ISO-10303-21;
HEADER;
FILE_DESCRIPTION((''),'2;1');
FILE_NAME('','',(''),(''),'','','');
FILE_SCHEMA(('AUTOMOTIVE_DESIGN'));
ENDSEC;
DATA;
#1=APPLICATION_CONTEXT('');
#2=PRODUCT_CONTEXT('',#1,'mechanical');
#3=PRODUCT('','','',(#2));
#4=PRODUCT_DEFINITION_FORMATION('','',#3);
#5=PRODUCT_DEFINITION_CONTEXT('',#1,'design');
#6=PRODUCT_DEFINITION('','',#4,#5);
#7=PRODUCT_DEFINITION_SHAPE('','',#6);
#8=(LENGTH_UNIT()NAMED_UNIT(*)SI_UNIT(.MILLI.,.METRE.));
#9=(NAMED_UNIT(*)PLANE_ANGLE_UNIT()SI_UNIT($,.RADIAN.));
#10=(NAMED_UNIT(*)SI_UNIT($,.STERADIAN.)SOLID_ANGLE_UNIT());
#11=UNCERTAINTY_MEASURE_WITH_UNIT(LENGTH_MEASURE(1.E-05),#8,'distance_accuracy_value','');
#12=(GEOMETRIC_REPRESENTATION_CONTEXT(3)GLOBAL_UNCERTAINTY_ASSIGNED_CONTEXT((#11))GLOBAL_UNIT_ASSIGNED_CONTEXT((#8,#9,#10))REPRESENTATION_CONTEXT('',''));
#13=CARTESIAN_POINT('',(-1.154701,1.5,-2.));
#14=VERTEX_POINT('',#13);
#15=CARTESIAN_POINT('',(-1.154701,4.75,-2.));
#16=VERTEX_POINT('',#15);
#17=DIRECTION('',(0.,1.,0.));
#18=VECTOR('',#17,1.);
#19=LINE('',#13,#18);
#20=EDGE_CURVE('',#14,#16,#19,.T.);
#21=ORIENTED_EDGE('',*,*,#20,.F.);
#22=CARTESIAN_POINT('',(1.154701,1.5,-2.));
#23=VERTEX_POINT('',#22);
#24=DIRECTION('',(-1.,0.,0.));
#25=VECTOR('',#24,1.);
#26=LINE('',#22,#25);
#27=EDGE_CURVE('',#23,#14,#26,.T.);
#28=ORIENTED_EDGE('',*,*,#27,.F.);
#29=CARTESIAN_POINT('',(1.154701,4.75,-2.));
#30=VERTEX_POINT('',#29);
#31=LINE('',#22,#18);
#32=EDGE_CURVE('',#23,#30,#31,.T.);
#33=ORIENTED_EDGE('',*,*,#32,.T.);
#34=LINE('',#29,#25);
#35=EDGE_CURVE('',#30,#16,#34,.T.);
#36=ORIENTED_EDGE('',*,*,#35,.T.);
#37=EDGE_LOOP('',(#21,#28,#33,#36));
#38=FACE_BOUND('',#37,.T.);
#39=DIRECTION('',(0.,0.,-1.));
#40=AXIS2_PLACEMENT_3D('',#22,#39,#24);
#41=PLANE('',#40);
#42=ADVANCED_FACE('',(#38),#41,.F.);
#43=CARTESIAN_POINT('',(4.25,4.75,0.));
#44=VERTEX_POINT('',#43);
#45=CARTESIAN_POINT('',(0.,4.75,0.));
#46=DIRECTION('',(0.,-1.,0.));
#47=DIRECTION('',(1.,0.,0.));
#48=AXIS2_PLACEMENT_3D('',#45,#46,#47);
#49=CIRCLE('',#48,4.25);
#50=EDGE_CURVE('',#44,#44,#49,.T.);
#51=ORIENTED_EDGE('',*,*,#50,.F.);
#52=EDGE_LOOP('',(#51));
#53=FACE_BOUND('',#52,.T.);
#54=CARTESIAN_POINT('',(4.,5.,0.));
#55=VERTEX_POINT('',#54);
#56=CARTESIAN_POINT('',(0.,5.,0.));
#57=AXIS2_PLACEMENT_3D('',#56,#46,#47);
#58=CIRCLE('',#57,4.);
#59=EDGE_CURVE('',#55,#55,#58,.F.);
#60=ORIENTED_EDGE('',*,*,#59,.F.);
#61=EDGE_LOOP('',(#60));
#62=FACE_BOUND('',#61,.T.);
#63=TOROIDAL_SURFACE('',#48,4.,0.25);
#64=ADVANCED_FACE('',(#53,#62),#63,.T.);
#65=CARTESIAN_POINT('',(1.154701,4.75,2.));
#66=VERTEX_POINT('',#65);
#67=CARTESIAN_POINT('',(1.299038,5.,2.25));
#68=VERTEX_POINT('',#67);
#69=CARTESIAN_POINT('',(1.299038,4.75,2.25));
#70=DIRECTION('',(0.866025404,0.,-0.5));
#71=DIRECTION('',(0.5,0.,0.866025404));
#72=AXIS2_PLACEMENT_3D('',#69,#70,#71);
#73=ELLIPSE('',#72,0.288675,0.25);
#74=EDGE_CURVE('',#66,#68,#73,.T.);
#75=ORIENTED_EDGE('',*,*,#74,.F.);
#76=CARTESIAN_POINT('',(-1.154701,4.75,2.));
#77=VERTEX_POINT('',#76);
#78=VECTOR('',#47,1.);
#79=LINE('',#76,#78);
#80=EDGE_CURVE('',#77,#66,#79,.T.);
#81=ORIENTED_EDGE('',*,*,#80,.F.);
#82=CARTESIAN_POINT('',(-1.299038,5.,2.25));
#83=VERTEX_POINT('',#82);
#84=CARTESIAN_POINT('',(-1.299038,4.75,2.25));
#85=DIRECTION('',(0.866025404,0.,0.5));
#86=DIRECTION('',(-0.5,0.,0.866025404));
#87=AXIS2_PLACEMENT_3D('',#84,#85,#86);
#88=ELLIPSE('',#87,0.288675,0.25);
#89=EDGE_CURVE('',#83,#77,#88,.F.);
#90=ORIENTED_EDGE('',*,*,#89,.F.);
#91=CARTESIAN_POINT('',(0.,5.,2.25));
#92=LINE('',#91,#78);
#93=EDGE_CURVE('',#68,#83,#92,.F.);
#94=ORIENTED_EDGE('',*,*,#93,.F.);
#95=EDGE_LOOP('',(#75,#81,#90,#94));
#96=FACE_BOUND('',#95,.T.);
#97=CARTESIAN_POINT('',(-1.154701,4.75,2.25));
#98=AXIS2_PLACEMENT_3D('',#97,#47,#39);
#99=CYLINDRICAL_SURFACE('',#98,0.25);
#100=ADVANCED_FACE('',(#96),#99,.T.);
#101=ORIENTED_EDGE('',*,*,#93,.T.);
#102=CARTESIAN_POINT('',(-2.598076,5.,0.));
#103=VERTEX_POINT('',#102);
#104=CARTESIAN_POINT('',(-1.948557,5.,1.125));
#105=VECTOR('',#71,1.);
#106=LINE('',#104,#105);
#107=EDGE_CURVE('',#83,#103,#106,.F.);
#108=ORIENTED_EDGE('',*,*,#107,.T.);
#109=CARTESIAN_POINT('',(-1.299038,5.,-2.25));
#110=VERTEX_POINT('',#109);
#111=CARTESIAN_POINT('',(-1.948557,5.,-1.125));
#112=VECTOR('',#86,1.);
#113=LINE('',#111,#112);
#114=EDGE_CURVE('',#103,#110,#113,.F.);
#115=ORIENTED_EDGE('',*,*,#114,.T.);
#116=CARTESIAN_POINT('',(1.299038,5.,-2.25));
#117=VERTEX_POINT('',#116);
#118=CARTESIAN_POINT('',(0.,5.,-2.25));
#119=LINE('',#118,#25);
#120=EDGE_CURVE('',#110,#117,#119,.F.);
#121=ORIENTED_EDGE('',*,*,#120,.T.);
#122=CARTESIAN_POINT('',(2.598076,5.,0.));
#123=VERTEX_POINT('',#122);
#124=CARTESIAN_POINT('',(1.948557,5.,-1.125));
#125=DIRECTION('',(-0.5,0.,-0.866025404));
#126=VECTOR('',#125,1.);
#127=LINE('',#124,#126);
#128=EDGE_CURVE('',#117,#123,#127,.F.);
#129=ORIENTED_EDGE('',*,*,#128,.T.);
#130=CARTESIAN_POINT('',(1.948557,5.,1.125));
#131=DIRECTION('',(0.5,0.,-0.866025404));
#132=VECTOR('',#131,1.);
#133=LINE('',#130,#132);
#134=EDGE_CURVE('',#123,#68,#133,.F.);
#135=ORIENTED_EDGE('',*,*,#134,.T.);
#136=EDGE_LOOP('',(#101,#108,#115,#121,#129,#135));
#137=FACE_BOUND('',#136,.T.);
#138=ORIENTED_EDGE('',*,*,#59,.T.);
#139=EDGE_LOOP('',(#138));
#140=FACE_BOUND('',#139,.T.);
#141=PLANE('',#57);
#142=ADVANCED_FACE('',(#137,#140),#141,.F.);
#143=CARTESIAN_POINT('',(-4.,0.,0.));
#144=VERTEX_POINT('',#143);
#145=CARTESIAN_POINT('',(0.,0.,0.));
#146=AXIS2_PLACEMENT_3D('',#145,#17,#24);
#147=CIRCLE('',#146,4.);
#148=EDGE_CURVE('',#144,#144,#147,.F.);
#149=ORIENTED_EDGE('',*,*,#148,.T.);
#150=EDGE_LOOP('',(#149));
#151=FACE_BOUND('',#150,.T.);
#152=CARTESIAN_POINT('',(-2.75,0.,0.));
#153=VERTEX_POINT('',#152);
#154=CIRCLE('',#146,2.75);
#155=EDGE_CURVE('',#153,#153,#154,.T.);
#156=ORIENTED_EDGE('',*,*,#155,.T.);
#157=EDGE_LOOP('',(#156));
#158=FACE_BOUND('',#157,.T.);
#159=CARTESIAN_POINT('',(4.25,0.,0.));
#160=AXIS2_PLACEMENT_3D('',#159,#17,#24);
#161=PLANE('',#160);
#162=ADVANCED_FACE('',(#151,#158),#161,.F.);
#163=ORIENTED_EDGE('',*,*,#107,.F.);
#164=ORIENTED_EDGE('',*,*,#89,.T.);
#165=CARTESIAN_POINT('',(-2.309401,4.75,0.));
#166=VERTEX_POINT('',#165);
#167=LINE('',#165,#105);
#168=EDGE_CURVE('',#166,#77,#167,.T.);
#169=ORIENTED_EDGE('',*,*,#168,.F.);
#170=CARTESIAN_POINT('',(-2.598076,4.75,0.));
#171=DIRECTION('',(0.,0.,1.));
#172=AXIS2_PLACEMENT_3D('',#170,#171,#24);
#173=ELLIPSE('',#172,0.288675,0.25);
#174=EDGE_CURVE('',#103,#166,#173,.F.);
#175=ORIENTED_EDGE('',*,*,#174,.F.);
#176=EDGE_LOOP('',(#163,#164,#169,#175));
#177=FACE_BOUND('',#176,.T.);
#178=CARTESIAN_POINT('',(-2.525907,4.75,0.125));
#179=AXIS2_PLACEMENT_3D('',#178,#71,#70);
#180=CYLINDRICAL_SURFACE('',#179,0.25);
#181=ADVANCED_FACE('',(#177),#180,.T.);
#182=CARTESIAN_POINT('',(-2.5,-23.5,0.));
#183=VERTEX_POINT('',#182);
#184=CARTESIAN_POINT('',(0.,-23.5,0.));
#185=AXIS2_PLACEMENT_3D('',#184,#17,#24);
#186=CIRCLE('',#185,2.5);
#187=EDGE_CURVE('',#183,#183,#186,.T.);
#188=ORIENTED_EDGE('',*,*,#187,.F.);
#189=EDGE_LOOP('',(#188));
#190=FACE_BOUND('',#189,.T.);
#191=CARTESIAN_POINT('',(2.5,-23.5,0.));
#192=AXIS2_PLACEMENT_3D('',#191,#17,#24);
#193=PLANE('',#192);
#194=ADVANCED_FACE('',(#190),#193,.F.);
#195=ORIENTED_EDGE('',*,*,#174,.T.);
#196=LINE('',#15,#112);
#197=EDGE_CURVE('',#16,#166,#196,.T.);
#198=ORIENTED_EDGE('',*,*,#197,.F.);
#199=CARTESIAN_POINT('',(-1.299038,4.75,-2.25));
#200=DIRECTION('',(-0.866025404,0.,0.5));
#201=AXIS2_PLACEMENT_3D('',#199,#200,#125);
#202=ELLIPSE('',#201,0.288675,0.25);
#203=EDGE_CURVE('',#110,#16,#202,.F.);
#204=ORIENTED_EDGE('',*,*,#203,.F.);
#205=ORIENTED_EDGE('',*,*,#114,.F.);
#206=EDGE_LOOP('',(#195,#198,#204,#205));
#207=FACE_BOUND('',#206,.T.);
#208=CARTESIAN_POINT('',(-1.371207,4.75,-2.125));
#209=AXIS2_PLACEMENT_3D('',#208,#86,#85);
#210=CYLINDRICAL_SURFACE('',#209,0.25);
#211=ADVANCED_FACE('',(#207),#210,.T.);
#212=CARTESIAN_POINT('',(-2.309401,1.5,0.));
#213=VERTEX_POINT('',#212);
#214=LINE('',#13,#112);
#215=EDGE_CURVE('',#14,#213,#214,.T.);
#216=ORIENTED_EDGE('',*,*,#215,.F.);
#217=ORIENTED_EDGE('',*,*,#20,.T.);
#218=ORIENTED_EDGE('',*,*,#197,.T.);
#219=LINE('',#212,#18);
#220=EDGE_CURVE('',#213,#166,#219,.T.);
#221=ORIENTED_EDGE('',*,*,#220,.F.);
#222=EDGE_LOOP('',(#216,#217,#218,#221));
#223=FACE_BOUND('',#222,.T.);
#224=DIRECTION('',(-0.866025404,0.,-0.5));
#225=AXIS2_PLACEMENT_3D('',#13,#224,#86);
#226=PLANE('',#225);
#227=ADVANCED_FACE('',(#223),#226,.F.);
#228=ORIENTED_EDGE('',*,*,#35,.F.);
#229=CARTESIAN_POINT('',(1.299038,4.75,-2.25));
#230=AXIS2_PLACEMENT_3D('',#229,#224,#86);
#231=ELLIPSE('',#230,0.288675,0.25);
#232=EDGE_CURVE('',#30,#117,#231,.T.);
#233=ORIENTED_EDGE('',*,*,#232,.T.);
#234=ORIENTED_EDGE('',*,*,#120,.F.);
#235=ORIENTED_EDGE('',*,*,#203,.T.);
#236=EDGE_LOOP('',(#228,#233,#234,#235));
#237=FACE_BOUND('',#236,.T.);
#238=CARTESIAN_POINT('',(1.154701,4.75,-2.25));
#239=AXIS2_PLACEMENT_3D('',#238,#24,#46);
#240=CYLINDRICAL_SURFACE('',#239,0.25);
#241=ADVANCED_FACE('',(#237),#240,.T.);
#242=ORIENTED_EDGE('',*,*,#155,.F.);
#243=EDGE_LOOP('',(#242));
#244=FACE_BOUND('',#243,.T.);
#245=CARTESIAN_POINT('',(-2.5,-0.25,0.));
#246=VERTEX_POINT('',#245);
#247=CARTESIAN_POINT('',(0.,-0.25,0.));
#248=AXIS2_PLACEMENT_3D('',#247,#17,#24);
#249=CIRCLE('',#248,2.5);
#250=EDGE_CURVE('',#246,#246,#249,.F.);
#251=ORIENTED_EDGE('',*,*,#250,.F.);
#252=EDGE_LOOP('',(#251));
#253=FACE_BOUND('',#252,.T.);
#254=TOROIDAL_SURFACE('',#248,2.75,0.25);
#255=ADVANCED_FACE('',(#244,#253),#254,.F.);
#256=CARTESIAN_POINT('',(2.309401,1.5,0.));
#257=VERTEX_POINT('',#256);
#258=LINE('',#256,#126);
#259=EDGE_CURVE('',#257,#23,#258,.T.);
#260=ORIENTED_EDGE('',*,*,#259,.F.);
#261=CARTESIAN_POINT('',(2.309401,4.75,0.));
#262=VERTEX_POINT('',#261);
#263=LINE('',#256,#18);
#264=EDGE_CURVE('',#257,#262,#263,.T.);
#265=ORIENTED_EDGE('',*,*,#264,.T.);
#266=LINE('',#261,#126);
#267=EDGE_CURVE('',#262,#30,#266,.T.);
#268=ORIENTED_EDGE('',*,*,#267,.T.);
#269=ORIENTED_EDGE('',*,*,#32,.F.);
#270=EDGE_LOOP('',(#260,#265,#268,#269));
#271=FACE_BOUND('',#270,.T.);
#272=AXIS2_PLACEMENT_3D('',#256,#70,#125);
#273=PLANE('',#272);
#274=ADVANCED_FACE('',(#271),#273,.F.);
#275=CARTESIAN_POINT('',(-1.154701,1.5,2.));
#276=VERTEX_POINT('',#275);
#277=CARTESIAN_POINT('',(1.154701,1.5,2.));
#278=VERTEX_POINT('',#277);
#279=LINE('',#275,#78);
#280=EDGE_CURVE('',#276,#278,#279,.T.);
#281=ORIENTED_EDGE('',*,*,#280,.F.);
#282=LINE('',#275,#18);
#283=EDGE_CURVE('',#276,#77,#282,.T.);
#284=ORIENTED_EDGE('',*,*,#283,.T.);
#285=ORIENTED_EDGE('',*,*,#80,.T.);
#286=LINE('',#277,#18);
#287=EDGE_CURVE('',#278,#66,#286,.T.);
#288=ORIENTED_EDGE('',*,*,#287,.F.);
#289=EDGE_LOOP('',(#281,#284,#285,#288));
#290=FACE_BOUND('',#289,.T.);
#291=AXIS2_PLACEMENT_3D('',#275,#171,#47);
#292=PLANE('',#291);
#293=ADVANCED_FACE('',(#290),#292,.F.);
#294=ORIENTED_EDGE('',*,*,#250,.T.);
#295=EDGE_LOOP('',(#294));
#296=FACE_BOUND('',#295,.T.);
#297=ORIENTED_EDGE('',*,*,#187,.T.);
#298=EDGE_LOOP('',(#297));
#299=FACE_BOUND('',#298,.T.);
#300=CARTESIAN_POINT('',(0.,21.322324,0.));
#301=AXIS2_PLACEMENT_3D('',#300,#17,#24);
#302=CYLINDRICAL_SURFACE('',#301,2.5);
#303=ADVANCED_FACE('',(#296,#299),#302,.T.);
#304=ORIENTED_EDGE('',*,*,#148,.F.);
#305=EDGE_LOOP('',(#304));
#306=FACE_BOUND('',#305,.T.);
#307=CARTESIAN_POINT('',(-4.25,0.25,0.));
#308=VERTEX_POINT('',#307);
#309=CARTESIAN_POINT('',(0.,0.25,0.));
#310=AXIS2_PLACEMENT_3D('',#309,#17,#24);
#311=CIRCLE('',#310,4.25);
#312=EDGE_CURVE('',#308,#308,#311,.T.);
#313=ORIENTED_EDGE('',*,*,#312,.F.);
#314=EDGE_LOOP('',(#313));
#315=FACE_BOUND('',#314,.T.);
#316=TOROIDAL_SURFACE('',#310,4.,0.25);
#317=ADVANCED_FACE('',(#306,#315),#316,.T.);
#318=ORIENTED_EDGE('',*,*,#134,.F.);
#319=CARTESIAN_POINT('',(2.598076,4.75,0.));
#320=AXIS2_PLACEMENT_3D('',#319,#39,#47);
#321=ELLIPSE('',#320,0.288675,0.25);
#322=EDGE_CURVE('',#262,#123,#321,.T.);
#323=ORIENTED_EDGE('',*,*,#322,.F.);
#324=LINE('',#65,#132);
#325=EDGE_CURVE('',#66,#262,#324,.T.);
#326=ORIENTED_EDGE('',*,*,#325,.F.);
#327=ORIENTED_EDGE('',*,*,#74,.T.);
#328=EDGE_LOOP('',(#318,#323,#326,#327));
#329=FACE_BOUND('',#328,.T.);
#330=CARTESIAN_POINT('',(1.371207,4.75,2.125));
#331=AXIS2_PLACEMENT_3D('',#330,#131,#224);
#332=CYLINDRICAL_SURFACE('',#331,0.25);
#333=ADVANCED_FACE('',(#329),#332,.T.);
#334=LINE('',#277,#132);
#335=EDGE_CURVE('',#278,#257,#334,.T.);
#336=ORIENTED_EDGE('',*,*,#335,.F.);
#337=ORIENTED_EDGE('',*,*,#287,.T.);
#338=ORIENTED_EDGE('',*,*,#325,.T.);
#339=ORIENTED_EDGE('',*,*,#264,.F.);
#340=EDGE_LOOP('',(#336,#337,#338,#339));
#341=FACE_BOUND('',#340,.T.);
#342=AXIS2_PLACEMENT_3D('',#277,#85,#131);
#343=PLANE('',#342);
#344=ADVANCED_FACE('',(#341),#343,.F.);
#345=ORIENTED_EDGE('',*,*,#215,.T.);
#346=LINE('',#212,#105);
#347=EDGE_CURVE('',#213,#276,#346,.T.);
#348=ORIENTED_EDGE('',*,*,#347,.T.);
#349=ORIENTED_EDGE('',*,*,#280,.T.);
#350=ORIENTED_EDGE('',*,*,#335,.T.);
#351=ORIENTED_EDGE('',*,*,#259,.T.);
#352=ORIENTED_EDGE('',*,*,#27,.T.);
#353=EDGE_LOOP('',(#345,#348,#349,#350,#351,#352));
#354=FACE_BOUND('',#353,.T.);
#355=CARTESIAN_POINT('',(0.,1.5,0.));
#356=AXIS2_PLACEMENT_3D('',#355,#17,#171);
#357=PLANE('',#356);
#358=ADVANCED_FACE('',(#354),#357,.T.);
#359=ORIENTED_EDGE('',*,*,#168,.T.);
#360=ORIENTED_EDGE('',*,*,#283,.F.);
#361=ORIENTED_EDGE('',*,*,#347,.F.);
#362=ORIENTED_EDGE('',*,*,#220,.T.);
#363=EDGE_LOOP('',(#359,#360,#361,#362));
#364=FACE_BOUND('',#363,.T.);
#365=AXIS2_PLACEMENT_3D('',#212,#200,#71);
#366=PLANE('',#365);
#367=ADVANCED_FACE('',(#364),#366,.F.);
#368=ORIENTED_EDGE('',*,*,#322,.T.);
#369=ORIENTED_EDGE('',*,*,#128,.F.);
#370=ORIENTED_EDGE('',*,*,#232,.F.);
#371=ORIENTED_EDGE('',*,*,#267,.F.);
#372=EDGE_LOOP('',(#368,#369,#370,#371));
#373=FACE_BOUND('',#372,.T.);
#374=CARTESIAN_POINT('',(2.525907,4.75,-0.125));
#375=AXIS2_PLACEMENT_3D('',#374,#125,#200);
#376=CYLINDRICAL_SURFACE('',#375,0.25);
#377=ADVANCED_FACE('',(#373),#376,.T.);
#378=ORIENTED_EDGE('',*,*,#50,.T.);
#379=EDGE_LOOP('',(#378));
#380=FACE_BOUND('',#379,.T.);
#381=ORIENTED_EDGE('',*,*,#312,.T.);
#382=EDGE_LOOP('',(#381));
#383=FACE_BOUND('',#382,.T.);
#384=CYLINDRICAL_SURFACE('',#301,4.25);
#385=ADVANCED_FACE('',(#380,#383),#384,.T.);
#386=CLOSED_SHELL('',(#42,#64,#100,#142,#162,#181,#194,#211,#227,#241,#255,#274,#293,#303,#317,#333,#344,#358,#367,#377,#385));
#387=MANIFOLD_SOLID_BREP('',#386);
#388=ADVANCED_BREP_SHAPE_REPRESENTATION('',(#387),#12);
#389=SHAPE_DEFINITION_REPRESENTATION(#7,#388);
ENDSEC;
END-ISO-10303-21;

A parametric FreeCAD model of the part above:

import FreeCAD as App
import Part
import Sketcher

V = App.Vector
Q = App.Units.Quantity


def edges_at(feature, points):
    """Names of the edges that pass closest to the given points."""
    edges = feature.Shape.Edges
    near = lambda p: min(range(len(edges)), key=lambda i: edges[i].distToShape(Part.Vertex(*p))[0])
    return sorted({f"Edge{near(p) + 1}" for p in points})

doc = App.newDocument("Part")
params = doc.addObject("Spreadsheet::Sheet", "Params")
for row, (alias, value) in enumerate([
    ("sketch1_height", "5 mm"),
    ("sketch1_width", "2.5 mm"),
    ("sketch1_height2", "28.5 mm"),
    ("sketch1_width2", "4.25 mm"),
    ("revolution_angle", "360 deg"),
    ("pocket1_length", "3.5 mm"),
    ("fillet_radius", "0.25 mm"),
], start=1):
    params.set(f"A{row}", alias)
    params.set(f"B{row}", "=" + value)
    params.setAlias(f"B{row}", alias)

body = doc.addObject("PartDesign::Body", "Body")

sketch1 = body.newObject("Sketcher::SketchObject", "Sketch")
sketch1.AttachmentSupport = (doc.getObject("XY_Plane"), [""])
sketch1.MapMode = "FlatFace"
sketch1.addGeometry([
    Part.LineSegment(V(4.25, 5, 0), V(0, 5, 0)),
    Part.LineSegment(V(0, 5, 0), V(0, -23.5, 0)),
    Part.LineSegment(V(0, -23.5, 0), V(2.5, -23.5, 0)),
    Part.LineSegment(V(2.5, -23.5, 0), V(2.5, 0, 0)),
    Part.LineSegment(V(2.5, 0, 0), V(4.25, 0, 0)),
    Part.LineSegment(V(4.25, 0, 0), V(4.25, 5, 0)),
], False)
sketch1.addConstraint([
    Sketcher.Constraint("Coincident", 0, 2, 1, 1),
    Sketcher.Constraint("Coincident", 1, 2, 2, 1),
    Sketcher.Constraint("Coincident", 2, 2, 3, 1),
    Sketcher.Constraint("Coincident", 3, 2, 4, 1),
    Sketcher.Constraint("Coincident", 4, 2, 5, 1),
    Sketcher.Constraint("Coincident", 5, 2, 0, 1),
    Sketcher.Constraint("Horizontal", 0),
    Sketcher.Constraint("Vertical", 1),
    Sketcher.Constraint("Horizontal", 2),
    Sketcher.Constraint("Vertical", 3),
    Sketcher.Constraint("Horizontal", 4),
    Sketcher.Constraint("Vertical", 5),
    Sketcher.Constraint("PointOnObject", 0, 2, -2),
    Sketcher.Constraint("PointOnObject", 3, 2, -1),
    Sketcher.Constraint("DistanceY", 5, 1, 5, 2, 5.0),
    Sketcher.Constraint("DistanceX", 2, 1, 2, 2, 2.5),
    Sketcher.Constraint("DistanceY", 1, 2, 1, 1, 28.5),
    Sketcher.Constraint("DistanceX", 0, 2, 0, 1, 4.25),
])
sketch1.setExpression("Constraints[14]", "Params.sketch1_height")
sketch1.setExpression("Constraints[15]", "Params.sketch1_width")
sketch1.setExpression("Constraints[16]", "Params.sketch1_height2")
sketch1.setExpression("Constraints[17]", "Params.sketch1_width2")
revolution = body.newObject("PartDesign::Revolution", "Revolution")
revolution.Profile = sketch1
revolution.ReferenceAxis = (sketch1, ["V_Axis"])
revolution.setExpression("Angle", "Params.revolution_angle")

sketch2 = body.newObject("Sketcher::SketchObject", "Sketch001")
sketch2.AttachmentSupport = (doc.getObject("XZ_Plane"), [""])
sketch2.MapMode = "FlatFace"
sketch2.AttachmentOffset = App.Placement(V(0, 0, -5), App.Rotation())
sketch2.addGeometry([
    Part.LineSegment(V(2.309401, 0, 0), V(1.154701, -2, 0)),
    Part.LineSegment(V(1.154701, -2, 0), V(-1.154701, -2, 0)),
    Part.LineSegment(V(-1.154701, -2, 0), V(-2.309401, 0, 0)),
    Part.LineSegment(V(-2.309401, 0, 0), V(-1.154701, 2, 0)),
    Part.LineSegment(V(-1.154701, 2, 0), V(1.154701, 2, 0)),
    Part.LineSegment(V(1.154701, 2, 0), V(2.309401, 0, 0)),
], False)
sketch2.addConstraint([
    Sketcher.Constraint("Coincident", 0, 2, 1, 1),
    Sketcher.Constraint("Coincident", 1, 2, 2, 1),
    Sketcher.Constraint("Coincident", 2, 2, 3, 1),
    Sketcher.Constraint("Coincident", 3, 2, 4, 1),
    Sketcher.Constraint("Coincident", 4, 2, 5, 1),
    Sketcher.Constraint("Coincident", 5, 2, 0, 1),
    Sketcher.Constraint("Horizontal", 1),
    Sketcher.Constraint("Horizontal", 4),
    Sketcher.Constraint("Symmetric", 0, 2, 3, 2, -1, 1),
    Sketcher.Constraint("Symmetric", 2, 2, 5, 2, -1, 1),
    Sketcher.Constraint("PointOnObject", 2, 2, -1),
    Sketcher.Constraint("Parallel", 2, 5),
    Sketcher.Constraint("Vertical", 1, 2, 3, 2),
    Sketcher.Constraint("Angle", 0, Q("-120 deg")),
    Sketcher.Constraint("DistanceY", 0, 2, -1, 1, 2.0),
    Sketcher.Constraint("DistanceX", 1, 2, 1, 1, 2.309401),
])
pocket1 = body.newObject("PartDesign::Pocket", "Pocket")
pocket1.Profile = sketch2
pocket1.setExpression("Length", "Params.pocket1_length")
pocket1.Reversed = True
doc.recompute()

fillet = body.newObject("PartDesign::Fillet", "Fillet")
fillet.Base = (pocket1, edges_at(pocket1, [
    (1.732, 5, 1),
    (1.732, 5, -1),
    (0, 5, -2),
    (-1.732, 5, -1),
    (-1.732, 5, 1),
    (0, 5, 2),
    (2.5, 0, 0),
    (4.25, 0, 0),
    (4.25, 5, 0),
]))
fillet.setExpression("Radius", "Params.fillet_radius")

doc.recompute()
